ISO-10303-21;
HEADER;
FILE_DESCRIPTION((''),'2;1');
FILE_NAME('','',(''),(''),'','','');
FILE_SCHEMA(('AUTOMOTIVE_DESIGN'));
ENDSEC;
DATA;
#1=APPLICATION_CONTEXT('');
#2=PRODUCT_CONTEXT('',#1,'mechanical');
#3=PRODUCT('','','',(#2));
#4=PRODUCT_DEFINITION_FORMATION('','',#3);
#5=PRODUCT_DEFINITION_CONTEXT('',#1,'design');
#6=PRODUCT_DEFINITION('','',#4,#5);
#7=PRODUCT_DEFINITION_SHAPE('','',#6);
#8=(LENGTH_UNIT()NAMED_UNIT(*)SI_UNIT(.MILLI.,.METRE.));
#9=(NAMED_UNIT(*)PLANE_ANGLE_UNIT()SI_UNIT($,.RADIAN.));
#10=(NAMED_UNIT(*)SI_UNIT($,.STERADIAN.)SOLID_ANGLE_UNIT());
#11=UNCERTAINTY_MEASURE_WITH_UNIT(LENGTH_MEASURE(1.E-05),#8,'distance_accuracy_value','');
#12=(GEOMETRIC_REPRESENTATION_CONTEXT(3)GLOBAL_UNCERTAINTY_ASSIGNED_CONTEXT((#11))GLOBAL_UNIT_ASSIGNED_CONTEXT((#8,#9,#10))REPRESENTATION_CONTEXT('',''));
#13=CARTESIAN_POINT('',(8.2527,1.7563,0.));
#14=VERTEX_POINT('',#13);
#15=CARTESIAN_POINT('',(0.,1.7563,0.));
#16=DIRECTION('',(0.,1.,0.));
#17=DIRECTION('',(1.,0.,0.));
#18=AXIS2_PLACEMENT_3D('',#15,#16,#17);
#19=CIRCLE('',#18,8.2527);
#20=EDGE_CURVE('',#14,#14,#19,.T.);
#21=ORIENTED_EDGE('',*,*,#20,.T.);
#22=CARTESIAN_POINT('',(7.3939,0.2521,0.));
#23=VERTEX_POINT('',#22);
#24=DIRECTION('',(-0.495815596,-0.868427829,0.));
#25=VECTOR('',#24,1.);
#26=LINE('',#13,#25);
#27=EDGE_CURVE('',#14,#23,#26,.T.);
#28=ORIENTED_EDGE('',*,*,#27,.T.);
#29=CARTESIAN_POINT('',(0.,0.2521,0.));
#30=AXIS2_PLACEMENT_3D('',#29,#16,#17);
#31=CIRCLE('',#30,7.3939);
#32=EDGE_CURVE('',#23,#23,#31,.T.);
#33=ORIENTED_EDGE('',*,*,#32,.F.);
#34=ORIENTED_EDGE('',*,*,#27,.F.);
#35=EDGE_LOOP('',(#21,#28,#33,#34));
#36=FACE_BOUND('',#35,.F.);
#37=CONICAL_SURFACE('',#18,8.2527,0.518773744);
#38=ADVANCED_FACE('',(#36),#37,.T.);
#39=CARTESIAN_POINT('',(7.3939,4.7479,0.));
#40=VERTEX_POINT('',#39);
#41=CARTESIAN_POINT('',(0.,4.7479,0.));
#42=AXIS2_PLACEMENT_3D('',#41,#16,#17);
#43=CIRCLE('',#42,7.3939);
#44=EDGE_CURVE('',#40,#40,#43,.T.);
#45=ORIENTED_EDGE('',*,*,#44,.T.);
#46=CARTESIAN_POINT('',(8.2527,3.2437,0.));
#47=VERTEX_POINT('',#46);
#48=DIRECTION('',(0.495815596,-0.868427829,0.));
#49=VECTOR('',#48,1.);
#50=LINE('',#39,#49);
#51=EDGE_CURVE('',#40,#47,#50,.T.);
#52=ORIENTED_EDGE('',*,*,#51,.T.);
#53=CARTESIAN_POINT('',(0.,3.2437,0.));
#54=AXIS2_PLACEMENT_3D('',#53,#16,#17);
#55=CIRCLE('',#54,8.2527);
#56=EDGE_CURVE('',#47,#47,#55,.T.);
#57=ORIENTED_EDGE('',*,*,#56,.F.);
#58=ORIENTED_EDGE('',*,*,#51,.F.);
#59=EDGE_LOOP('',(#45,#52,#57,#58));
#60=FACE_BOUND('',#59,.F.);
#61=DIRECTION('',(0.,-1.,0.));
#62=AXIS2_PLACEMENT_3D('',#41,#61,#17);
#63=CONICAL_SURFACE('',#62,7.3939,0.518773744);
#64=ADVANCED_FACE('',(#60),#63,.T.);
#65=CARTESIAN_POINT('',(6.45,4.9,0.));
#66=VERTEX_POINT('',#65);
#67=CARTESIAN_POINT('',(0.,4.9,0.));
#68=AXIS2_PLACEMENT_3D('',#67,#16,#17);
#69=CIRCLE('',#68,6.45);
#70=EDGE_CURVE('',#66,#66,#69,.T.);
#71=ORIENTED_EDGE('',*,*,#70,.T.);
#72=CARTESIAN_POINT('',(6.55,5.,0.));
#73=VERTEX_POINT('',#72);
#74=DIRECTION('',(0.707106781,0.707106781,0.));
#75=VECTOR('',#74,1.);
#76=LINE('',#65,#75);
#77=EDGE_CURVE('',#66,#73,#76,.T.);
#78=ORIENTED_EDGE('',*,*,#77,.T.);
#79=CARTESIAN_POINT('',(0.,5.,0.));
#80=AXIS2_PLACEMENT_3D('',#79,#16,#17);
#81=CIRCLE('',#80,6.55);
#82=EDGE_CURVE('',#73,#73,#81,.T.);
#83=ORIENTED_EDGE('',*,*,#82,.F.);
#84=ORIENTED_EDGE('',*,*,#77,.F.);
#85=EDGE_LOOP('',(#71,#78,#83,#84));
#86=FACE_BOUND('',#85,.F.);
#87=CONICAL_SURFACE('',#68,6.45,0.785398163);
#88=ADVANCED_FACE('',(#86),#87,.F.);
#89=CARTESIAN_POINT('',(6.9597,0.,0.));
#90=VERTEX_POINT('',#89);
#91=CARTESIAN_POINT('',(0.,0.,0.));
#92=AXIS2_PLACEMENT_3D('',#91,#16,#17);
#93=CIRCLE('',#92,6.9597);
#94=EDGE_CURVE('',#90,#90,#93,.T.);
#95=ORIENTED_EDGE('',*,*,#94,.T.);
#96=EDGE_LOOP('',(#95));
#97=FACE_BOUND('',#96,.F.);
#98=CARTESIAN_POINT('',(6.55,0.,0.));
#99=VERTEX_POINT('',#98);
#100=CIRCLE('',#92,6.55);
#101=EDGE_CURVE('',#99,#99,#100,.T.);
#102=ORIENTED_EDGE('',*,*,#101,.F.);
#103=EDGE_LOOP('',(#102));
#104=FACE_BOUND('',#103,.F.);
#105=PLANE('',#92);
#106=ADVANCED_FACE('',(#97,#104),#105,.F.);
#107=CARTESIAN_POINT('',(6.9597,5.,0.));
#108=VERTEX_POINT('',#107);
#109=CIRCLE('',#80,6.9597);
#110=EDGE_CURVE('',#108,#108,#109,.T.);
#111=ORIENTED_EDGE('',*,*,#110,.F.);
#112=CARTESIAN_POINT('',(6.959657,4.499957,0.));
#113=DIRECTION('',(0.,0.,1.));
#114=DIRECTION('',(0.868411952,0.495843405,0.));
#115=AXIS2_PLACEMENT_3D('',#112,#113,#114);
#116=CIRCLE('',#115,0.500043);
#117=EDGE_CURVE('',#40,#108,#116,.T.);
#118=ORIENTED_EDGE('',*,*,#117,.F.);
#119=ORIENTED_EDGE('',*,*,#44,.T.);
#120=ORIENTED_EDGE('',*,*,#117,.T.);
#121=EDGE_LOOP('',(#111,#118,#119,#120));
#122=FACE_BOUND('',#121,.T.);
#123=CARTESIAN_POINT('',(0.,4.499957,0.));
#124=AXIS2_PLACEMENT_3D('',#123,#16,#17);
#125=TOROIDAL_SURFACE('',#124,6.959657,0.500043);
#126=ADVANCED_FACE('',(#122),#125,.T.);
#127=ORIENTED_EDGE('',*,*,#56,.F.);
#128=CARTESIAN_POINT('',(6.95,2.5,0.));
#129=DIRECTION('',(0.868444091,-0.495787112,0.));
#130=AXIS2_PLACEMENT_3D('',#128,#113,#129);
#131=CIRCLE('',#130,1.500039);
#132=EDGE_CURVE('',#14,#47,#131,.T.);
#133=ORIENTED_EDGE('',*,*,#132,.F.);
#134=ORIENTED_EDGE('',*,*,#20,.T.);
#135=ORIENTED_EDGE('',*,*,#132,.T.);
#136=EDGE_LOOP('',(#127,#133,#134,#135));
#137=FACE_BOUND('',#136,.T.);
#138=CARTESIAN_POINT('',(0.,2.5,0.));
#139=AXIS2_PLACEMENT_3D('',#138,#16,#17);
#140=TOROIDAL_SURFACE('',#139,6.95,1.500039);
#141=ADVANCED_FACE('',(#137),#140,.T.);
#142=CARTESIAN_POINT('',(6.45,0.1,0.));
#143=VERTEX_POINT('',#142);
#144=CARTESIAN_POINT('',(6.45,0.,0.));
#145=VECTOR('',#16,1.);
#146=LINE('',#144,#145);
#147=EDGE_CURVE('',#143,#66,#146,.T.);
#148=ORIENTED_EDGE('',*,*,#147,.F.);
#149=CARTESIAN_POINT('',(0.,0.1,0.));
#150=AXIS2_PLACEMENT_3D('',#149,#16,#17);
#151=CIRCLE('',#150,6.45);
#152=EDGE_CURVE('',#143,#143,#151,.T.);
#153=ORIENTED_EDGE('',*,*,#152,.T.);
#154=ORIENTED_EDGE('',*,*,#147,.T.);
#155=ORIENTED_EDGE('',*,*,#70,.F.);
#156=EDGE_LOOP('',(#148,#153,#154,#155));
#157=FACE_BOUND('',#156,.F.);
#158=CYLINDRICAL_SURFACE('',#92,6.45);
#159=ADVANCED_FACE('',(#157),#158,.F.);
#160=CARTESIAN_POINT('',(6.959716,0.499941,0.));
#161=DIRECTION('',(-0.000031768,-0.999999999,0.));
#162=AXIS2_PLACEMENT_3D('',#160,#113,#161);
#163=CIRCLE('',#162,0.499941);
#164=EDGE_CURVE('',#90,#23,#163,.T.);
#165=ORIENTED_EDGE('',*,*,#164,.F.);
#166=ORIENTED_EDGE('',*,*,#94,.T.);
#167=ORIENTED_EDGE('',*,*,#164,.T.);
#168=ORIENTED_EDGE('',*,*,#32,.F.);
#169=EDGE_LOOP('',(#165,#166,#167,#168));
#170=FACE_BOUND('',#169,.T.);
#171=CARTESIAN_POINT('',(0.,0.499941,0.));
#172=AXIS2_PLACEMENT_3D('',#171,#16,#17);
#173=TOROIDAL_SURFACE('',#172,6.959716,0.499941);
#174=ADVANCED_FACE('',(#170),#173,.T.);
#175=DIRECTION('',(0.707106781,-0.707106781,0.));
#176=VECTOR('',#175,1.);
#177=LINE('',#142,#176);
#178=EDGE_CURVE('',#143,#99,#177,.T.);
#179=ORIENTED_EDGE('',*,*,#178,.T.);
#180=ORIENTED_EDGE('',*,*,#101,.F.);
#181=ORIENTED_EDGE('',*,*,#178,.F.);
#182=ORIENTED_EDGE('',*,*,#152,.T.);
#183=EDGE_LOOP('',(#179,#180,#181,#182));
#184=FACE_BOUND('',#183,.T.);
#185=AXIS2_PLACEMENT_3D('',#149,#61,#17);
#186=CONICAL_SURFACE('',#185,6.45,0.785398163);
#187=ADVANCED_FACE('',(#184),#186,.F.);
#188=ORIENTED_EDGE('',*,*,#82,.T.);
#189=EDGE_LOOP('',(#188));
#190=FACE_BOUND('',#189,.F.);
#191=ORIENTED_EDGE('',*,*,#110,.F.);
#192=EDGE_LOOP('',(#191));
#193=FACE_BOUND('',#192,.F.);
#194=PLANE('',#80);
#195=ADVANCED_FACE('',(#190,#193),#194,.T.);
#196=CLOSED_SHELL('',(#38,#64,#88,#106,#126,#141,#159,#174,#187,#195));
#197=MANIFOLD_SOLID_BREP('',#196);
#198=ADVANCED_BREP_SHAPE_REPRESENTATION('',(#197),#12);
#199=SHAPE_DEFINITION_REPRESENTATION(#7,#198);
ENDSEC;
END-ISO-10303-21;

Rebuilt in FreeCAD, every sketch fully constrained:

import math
import FreeCAD as App
import Part
import Sketcher
from FreeCAD import Vector
Q = App.Units.Quantity


def edges_at(feature, points):
    """Names of the edges that pass closest to the given points."""
    edges = feature.Shape.Edges
    near = lambda p: min(range(len(edges)), key=lambda i: edges[i].distToShape(Part.Vertex(*p))[0])
    return sorted({f"Edge{near(p) + 1}" for p in points})

doc = App.newDocument("Part")
body = doc.addObject("PartDesign::Body", "Body")

# Sketch on XY plane
sketch1 = body.newObject("Sketcher::SketchObject", "Sketch")
sketch1.AttachmentSupport = (doc.getObject("XY_Plane"), [""])
sketch1.MapMode = "FlatFace"
sketch1.addGeometry(Part.LineSegment(Vector(6.45, 5, 0), Vector(6.45, 0, 0)), False)
sketch1.addGeometry(Part.LineSegment(Vector(6.45, 0, 0), Vector(6.96, 0, 0)), False)
sketch1.addGeometry(Part.ArcOfCircle(Part.Circle(Vector(6.96, 0.5, 0), Vector(0, 0, 1), 0.5), math.radians(-90), math.radians(-30)), False)
sketch1.addGeometry(Part.LineSegment(Vector(7.39, 0.25, 0), Vector(8.25, 1.76, 0)), False)
sketch1.addGeometry(Part.ArcOfCircle(Part.Circle(Vector(6.95, 2.5, 0), Vector(0, 0, 1), 1.5), math.radians(-30), math.radians(30)), False)
sketch1.addGeometry(Part.LineSegment(Vector(8.25, 3.24, 0), Vector(7.39, 4.75, 0)), False)
sketch1.addGeometry(Part.ArcOfCircle(Part.Circle(Vector(6.96, 4.5, 0), Vector(0, 0, 1), 0.5), math.radians(30), math.radians(90)), False)
sketch1.addGeometry(Part.LineSegment(Vector(6.96, 5, 0), Vector(6.45, 5, 0)), False)
sketch1.addConstraint(Sketcher.Constraint("Coincident", 0, 2, 1, 1))
sketch1.addConstraint(Sketcher.Constraint("Tangent", 1, 2, 2, 1))
sketch1.addConstraint(Sketcher.Constraint("Tangent", 2, 2, 3, 1))
sketch1.addConstraint(Sketcher.Constraint("Tangent", 3, 2, 4, 1))
sketch1.addConstraint(Sketcher.Constraint("Tangent", 4, 2, 5, 1))
sketch1.addConstraint(Sketcher.Constraint("Tangent", 5, 2, 6, 1))
sketch1.addConstraint(Sketcher.Constraint("Tangent", 6, 2, 7, 1))
sketch1.addConstraint(Sketcher.Constraint("Coincident", 7, 2, 0, 1))
sketch1.addConstraint(Sketcher.Constraint("Vertical", 0))
sketch1.addConstraint(Sketcher.Constraint("Horizontal", 1))
sketch1.addConstraint(Sketcher.Constraint("Horizontal", 7))
sketch1.addConstraint(Sketcher.Constraint("Equal", 2, 6))
sketch1.addConstraint(Sketcher.Constraint("PointOnObject", 0, 2, -1))
sketch1.addConstraint(Sketcher.Constraint("Vertical", 2, 3, 6, 3))
sketch1.addConstraint(Sketcher.Constraint("Vertical", 3, 2, 4, 2))
sketch1.addConstraint(Sketcher.Constraint("Radius", 2, Q("0.5 mm")))
sketch1.addConstraint(Sketcher.Constraint("Radius", 4, Q("1.5 mm")))
sketch1.addConstraint(Sketcher.Constraint("DistanceY", 0, 2, 0, 1, Q("5 mm")))
sketch1.addConstraint(Sketcher.Constraint("DistanceX", 0, 2, 4, 3, Q("0.5 mm")))
sketch1.addConstraint(Sketcher.Constraint("DistanceX", -1, 1, 0, 2, Q("6.45 mm")))
sketch1.addConstraint(Sketcher.Constraint("DistanceX", 1, 1, 1, 2, Q("0.5097 mm")))
revolution = body.newObject("PartDesign::Revolution", "Revolution")
revolution.Profile = sketch1
revolution.ReferenceAxis = (sketch1, ["V_Axis"])
revolution.Angle = 360
doc.recompute()

chamfer = body.newObject("PartDesign::Chamfer", "Chamfer")
chamfer.Base = (revolution, edges_at(revolution, [(-6.45, 0, 0), (-6.45, 5, 0)]))
chamfer.Size = 0.1

doc.recompute()
